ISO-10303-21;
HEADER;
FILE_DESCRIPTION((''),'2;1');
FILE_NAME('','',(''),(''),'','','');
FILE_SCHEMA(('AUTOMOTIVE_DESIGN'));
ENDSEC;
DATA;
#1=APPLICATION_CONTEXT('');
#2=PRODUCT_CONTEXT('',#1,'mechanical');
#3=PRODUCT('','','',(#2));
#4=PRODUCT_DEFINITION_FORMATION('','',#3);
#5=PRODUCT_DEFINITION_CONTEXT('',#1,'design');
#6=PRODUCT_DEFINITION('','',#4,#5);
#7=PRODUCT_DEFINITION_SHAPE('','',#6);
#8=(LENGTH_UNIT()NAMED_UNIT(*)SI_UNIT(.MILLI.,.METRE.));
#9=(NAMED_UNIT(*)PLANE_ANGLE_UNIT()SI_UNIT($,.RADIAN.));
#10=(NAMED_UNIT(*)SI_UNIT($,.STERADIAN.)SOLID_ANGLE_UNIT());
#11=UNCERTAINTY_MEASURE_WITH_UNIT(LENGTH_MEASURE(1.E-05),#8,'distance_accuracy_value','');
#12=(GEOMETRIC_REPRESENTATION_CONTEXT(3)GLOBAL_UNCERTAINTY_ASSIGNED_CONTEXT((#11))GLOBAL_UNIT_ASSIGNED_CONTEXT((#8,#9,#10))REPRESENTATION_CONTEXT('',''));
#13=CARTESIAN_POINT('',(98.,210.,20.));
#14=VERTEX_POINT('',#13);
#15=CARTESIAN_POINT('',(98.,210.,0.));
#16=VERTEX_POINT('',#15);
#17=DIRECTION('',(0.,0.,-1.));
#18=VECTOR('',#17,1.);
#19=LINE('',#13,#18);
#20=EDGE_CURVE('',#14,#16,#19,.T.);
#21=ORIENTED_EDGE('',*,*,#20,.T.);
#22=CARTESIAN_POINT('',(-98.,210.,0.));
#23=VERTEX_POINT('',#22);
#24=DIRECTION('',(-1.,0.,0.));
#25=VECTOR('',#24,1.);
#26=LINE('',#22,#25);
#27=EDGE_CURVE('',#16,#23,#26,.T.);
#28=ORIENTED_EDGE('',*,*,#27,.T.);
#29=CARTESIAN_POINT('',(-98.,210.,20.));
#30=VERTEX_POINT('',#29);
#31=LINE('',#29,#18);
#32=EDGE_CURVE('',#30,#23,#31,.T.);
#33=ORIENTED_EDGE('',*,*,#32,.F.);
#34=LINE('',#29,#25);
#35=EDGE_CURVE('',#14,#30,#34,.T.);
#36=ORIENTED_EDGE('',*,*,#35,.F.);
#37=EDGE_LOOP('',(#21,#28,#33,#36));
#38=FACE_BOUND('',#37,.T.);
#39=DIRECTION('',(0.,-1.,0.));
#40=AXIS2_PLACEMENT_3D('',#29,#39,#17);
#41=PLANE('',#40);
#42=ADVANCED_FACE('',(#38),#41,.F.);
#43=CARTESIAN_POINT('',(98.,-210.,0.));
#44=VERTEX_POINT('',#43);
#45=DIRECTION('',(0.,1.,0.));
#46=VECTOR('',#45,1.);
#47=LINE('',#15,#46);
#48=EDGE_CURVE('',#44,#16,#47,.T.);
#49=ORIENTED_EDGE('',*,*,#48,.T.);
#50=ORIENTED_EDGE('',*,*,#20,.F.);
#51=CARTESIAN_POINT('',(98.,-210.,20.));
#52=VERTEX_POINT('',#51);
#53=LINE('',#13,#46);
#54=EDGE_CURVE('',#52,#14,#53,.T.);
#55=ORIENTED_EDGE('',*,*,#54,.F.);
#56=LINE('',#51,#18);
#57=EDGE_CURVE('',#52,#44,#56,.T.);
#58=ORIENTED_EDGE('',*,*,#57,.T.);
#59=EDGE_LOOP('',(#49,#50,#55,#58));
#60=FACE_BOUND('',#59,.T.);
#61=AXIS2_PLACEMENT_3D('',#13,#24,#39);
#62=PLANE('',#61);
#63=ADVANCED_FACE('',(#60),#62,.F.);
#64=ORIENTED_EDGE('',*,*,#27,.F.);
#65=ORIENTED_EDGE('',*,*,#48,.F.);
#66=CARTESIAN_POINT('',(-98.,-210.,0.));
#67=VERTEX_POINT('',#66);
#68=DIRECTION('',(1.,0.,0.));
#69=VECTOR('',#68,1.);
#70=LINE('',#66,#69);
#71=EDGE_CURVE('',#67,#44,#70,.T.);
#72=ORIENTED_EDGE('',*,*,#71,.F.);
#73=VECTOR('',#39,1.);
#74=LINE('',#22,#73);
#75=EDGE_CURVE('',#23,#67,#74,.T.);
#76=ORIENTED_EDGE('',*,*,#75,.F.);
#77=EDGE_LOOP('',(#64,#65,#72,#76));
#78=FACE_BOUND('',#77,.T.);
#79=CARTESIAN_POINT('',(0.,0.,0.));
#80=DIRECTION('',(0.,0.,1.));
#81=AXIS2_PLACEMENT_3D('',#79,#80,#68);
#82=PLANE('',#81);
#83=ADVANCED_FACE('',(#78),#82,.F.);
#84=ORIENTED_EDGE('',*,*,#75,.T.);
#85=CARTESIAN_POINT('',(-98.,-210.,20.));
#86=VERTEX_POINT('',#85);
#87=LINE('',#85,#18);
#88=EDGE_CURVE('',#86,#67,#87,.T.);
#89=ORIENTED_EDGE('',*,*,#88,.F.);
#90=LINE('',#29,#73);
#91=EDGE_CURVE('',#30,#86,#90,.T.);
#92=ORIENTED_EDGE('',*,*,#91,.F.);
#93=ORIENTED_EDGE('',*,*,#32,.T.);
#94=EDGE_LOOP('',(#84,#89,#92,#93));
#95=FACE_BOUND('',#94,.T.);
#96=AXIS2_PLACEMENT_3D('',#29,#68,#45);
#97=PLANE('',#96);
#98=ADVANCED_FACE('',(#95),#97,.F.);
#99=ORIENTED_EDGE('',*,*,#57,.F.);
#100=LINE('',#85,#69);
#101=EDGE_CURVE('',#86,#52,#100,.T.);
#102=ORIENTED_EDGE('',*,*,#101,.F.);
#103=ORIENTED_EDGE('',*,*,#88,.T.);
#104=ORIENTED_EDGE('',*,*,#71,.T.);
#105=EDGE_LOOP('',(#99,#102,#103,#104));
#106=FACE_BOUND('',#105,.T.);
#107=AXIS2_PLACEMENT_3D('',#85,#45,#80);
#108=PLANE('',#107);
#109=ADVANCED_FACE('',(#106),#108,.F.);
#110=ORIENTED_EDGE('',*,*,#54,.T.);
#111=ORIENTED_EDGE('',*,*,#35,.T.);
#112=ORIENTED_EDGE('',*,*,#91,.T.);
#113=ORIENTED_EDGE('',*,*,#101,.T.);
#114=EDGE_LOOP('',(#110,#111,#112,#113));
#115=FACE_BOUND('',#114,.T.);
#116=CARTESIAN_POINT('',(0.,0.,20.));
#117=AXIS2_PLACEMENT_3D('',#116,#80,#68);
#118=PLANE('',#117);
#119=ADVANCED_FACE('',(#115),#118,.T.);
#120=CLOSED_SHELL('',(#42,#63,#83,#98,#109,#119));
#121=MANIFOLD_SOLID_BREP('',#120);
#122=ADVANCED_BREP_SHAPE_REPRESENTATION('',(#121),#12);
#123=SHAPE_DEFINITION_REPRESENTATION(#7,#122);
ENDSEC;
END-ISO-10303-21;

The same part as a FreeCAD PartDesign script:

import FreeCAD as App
import Part
import Sketcher
from FreeCAD import Vector
Q = App.Units.Quantity

doc = App.newDocument("Part")
params = doc.addObject("Spreadsheet::Sheet", "Params")
for row, (alias, value) in enumerate([
    ("sketch1_width", "196 mm"),
    ("sketch1_height", "420 mm"),
    ("pad1_length", "20 mm"),
], start=1):
    params.set(f"A{row}", alias)
    params.set(f"B{row}", "=" + value)
    params.setAlias(f"B{row}", alias)

body = doc.addObject("PartDesign::Body", "Body")

# Sketch on XY plane
sketch1 = body.newObject("Sketcher::SketchObject", "Sketch")
sketch1.AttachmentSupport = (doc.getObject("XY_Plane"), [""])
sketch1.MapMode = "FlatFace"
sketch1.addGeometry([
    Part.LineSegment(Vector(-98, 210, 0), Vector(-98, -210, 0)),
    Part.LineSegment(Vector(-98, -210, 0), Vector(98, -210, 0)),
    Part.LineSegment(Vector(98, -210, 0), Vector(98, 210, 0)),
    Part.LineSegment(Vector(98, 210, 0), Vector(-98, 210, 0)),
], False)
sketch1.addConstraint([
    Sketcher.Constraint("Coincident", 0, 2, 1, 1),
    Sketcher.Constraint("Coincident", 1, 2, 2, 1),
    Sketcher.Constraint("Coincident", 2, 2, 3, 1),
    Sketcher.Constraint("Coincident", 3, 2, 0, 1),
    Sketcher.Constraint("Vertical", 0),
    Sketcher.Constraint("Horizontal", 1),
    Sketcher.Constraint("Vertical", 2),
    Sketcher.Constraint("Horizontal", 3),
    Sketcher.Constraint("Symmetric", 0, 2, 2, 2, -1, 1),
    Sketcher.Constraint("DistanceX", 1, 1, 1, 2, Q("196 mm")),
    Sketcher.Constraint("DistanceY", 0, 2, 0, 1, Q("420 mm")),
])
sketch1.setExpression("Constraints[9]", "Params.sketch1_width")
sketch1.setExpression("Constraints[10]", "Params.sketch1_height")
pad1 = body.newObject("PartDesign::Pad", "Pad")
pad1.Profile = sketch1
pad1.setExpression("Length", "Params.pad1_length")

doc.recompute()
